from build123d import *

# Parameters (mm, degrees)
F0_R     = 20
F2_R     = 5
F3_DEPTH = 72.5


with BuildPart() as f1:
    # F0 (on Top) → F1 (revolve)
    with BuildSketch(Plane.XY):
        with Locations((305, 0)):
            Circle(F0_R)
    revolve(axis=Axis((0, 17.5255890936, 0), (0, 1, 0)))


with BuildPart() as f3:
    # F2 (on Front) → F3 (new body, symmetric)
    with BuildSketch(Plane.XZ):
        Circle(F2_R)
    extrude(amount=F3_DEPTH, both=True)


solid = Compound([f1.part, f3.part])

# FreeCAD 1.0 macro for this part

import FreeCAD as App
import Part
import Sketcher
from FreeCAD import Vector

doc = App.newDocument("Part")
body = doc.addObject("PartDesign::Body", "Body")

sketch1 = body.newObject("Sketcher::SketchObject", "Sketch")
sketch1.AttachmentSupport = (doc.getObject("XY_Plane"), [""])
sketch1.MapMode = "FlatFace"
sketch1.addGeometry(Part.Circle(Vector(305, 0, 0), Vector(0, 0, 1), 20), False)
sketch1.addConstraint([
    Sketcher.Constraint("PointOnObject", 0, 3, -1),
    Sketcher.Constraint("Diameter", 0, 40.0),
    Sketcher.Constraint("DistanceX", -1, 1, 0, 3, 305.0),
])
revolution = body.newObject("PartDesign::Revolution", "Revolution")
revolution.Profile = sketch1
revolution.ReferenceAxis = (sketch1, ["V_Axis"])
revolution.Angle = 360
body2 = doc.addObject("PartDesign::Body", "Body001")

sketch2 = body2.newObject("Sketcher::SketchObject", "Sketch001")
sketch2.AttachmentSupport = (doc.getObject("XZ_Plane001"), [""])
sketch2.MapMode = "FlatFace"
sketch2.addGeometry(Part.Circle(Vector(0, 0, 0), Vector(0, 0, 1), 5), False)
sketch2.addConstraint([
    Sketcher.Constraint("Coincident", 0, 3, -1, 1),
    Sketcher.Constraint("Diameter", 0, 10.0),
])
pad1 = body2.newObject("PartDesign::Pad", "Pad")
pad1.Profile = sketch2
pad1.Length = 145
pad1.Midplane = True

doc.recompute()
